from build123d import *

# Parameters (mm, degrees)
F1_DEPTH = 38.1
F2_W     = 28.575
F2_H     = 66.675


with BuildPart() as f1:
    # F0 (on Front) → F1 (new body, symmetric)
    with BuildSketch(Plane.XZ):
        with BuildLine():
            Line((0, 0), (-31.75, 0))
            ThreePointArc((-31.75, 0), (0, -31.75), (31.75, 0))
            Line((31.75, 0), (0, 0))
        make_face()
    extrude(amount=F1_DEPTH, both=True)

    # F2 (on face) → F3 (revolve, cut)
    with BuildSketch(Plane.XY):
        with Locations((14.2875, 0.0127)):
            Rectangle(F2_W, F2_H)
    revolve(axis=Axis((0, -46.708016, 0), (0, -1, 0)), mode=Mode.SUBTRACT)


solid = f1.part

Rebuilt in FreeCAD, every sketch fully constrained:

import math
import FreeCAD as App
import Part
import Sketcher
from FreeCAD import Vector
Q = App.Units.Quantity


def add_polygon(sketch, points):
    """Adds a closed chain of lines whose ends are joined by coincident constraints."""
    first, n = sketch.GeometryCount, len(points)
    for a, b in zip(points, points[1:] + points[:1]):
        sketch.addGeometry(Part.LineSegment(App.Vector(*a, 0), App.Vector(*b, 0)), False)
    for i in range(n):
        sketch.addConstraint(Sketcher.Constraint("Coincident", first + i, 2, first + (i + 1) % n, 1))

doc = App.newDocument("Part")
body = doc.addObject("PartDesign::Body", "Body")

sketch1 = body.newObject("Sketcher::SketchObject", "Sketch")
sketch1.AttachmentSupport = (doc.getObject("XZ_Plane"), [""])
sketch1.MapMode = "FlatFace"
sketch1.addGeometry([
    Part.ArcOfCircle(Part.Circle(Vector(0, 0, 0), Vector(0, 0, 1), 32), math.radians(180), math.radians(360)),
    Part.LineSegment(Vector(32, 0, 0), Vector(-32, 0, 0)),
], False)
sketch1.addConstraint([
    Sketcher.Constraint("Coincident", 0, 1, 1, 2),
    Sketcher.Constraint("Coincident", 1, 1, 0, 2),
    Sketcher.Constraint("Horizontal", 1),
    Sketcher.Constraint("Coincident", 0, 3, -1, 1),
    Sketcher.Constraint("PointOnObject", 0, 1, -1),
    Sketcher.Constraint("Radius", 0, Q("1.25 in")),
])
pad1 = body.newObject("PartDesign::Pad", "Pad")
pad1.Profile = sketch1
pad1.Length = Q("3 in")
pad1.Midplane = True

sketch2 = body.newObject("Sketcher::SketchObject", "Sketch001")
sketch2.AttachmentSupport = (doc.getObject("XY_Plane"), [""])
sketch2.MapMode = "FlatFace"
add_polygon(sketch2, [(0, 33), (0, -33), (29, -33), (29, 33)])
sketch2.addConstraint([
    Sketcher.Constraint("Vertical", 0),
    Sketcher.Constraint("Horizontal", 1),
    Sketcher.Constraint("Vertical", 2),
    Sketcher.Constraint("Horizontal", 3),
    Sketcher.Constraint("PointOnObject", 0, 2, -2),
    Sketcher.Constraint("DistanceX", 1, 1, 1, 2, Q("1.125 in")),
    Sketcher.Constraint("DistanceY", 0, 2, 0, 1, Q("2.625 in")),
    Sketcher.Constraint("DistanceY", 0, 2, -1, 1, Q("1.312 in")),
])
groove = body.newObject("PartDesign::Groove", "Groove")
groove.Profile = sketch2
groove.ReferenceAxis = (sketch2, ["V_Axis"])
groove.Angle = 360

doc.recompute()
